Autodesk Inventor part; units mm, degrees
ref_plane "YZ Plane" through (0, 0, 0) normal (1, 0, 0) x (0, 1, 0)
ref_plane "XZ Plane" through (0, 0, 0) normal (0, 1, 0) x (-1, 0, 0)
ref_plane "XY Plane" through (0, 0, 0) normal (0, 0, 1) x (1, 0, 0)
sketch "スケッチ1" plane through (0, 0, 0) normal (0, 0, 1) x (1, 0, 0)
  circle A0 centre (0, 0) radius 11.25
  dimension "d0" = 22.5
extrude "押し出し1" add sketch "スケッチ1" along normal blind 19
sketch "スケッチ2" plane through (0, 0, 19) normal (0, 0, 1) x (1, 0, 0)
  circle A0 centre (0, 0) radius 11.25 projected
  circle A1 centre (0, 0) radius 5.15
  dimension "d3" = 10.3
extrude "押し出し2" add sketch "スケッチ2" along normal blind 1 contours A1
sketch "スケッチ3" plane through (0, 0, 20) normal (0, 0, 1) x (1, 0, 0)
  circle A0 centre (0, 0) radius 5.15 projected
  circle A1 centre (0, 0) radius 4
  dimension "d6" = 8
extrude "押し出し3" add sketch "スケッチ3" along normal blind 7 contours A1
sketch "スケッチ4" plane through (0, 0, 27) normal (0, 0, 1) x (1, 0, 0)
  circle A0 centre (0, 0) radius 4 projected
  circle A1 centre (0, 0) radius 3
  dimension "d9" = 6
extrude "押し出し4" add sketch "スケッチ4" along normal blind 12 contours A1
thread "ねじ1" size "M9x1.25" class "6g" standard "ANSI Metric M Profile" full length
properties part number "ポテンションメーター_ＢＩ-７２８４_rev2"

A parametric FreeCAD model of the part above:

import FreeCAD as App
import Part
import Sketcher
from FreeCAD import Vector

doc = App.newDocument("Part")
body = doc.addObject("PartDesign::Body", "Body")

sketch1 = body.newObject("Sketcher::SketchObject", "Sketch")
sketch1.AttachmentSupport = (doc.getObject("XY_Plane"), [""])
sketch1.MapMode = "FlatFace"
sketch1.addGeometry(Part.Circle(Vector(0, 0, 0), Vector(0, 0, 1), 11), False)
sketch1.addConstraint([
    Sketcher.Constraint("Coincident", 0, 3, -1, 1),
    Sketcher.Constraint("Diameter", 0, 22.5),
])
pad1 = body.newObject("PartDesign::Pad", "Pad")
pad1.Profile = sketch1
pad1.Length = 19

sketch2 = body.newObject("Sketcher::SketchObject", "Sketch001")
sketch2.AttachmentSupport = (doc.getObject("XY_Plane"), [""])
sketch2.MapMode = "FlatFace"
sketch2.AttachmentOffset = App.Placement(Vector(0, 0, 19), App.Rotation())
sketch2.addGeometry(Part.Circle(Vector(0, 0, 0), Vector(0, 0, 1), 5), False)
sketch2.addConstraint([
    Sketcher.Constraint("Coincident", 0, 3, -1, 1),
    Sketcher.Constraint("Diameter", 0, 10.3),
])
pad2 = body.newObject("PartDesign::Pad", "Pad001")
pad2.Profile = sketch2
pad2.Length = 1

sketch3 = body.newObject("Sketcher::SketchObject", "Sketch002")
sketch3.AttachmentSupport = (doc.getObject("XY_Plane"), [""])
sketch3.MapMode = "FlatFace"
sketch3.AttachmentOffset = App.Placement(Vector(0, 0, 20), App.Rotation())
sketch3.addGeometry(Part.Circle(Vector(0, 0, 0), Vector(0, 0, 1), 4), False)
sketch3.addConstraint([
    Sketcher.Constraint("Coincident", 0, 3, -1, 1),
    Sketcher.Constraint("Diameter", 0, 8.0),
])
pad3 = body.newObject("PartDesign::Pad", "Pad002")
pad3.Profile = sketch3
pad3.Length = 7

sketch4 = body.newObject("Sketcher::SketchObject", "Sketch003")
sketch4.AttachmentSupport = (doc.getObject("XY_Plane"), [""])
sketch4.MapMode = "FlatFace"
sketch4.AttachmentOffset = App.Placement(Vector(0, 0, 27), App.Rotation())
sketch4.addGeometry(Part.Circle(Vector(0, 0, 0), Vector(0, 0, 1), 3), False)
sketch4.addConstraint([
    Sketcher.Constraint("Coincident", 0, 3, -1, 1),
    Sketcher.Constraint("Diameter", 0, 6.0),
])
pad4 = body.newObject("PartDesign::Pad", "Pad003")
pad4.Profile = sketch4
pad4.Length = 12

doc.recompute()
